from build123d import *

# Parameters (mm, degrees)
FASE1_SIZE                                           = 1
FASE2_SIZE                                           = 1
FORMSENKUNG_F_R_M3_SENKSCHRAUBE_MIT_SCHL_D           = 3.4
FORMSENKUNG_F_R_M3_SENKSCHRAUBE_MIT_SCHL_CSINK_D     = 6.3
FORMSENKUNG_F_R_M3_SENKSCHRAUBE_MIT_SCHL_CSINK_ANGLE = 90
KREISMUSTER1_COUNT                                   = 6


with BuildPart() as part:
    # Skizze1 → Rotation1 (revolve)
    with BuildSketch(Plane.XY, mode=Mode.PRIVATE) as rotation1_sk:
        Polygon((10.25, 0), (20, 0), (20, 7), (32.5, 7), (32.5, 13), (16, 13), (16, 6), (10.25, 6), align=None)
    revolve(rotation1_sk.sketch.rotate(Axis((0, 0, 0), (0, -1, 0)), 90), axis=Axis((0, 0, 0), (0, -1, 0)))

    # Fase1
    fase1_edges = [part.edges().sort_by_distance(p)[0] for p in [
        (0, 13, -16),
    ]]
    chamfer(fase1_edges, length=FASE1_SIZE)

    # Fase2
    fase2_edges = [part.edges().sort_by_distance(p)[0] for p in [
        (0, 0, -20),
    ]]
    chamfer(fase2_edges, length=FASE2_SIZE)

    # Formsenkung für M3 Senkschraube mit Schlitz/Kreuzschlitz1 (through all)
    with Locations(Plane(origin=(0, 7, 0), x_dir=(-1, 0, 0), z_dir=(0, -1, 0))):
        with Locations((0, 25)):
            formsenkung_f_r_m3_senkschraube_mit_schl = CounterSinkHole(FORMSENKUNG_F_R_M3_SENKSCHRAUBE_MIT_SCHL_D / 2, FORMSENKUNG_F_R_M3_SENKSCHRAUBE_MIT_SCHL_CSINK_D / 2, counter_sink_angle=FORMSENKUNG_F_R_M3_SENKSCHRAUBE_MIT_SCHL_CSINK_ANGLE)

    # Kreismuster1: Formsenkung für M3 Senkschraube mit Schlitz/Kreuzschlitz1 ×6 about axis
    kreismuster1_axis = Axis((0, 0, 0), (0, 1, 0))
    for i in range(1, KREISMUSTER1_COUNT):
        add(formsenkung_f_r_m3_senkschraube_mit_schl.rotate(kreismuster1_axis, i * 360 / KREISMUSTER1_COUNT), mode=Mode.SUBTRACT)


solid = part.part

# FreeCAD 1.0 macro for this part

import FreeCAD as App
import Part
import Sketcher
Q = App.Units.Quantity


def edges_at(feature, points):
    """Names of the edges that pass closest to the given points."""
    edges = feature.Shape.Edges
    near = lambda p: min(range(len(edges)), key=lambda i: edges[i].distToShape(Part.Vertex(*p))[0])
    return sorted({f"Edge{near(p) + 1}" for p in points})


def add_polygon(sketch, points):
    """Adds a closed chain of lines whose ends are joined by coincident constraints."""
    first, n = sketch.GeometryCount, len(points)
    for a, b in zip(points, points[1:] + points[:1]):
        sketch.addGeometry(Part.LineSegment(App.Vector(*a, 0), App.Vector(*b, 0)), False)
    for i in range(n):
        sketch.addConstraint(Sketcher.Constraint("Coincident", first + i, 2, first + (i + 1) % n, 1))

doc = App.newDocument("Part")
body = doc.addObject("PartDesign::Body", "Body")

sketch1 = body.newObject("Sketcher::SketchObject", "Sketch")
sketch1.AttachmentSupport = (doc.getObject("XY_Plane"), [""])
sketch1.MapMode = "FlatFace"
add_polygon(sketch1, [(10, 0), (20, 0), (20, 7), (32, 7), (32, 13), (16, 13), (16, 6), (10, 6)])
sketch1.addConstraint(Sketcher.Constraint("Horizontal", 0))
sketch1.addConstraint(Sketcher.Constraint("Vertical", 1))
sketch1.addConstraint(Sketcher.Constraint("Horizontal", 2))
sketch1.addConstraint(Sketcher.Constraint("Vertical", 3))
sketch1.addConstraint(Sketcher.Constraint("Horizontal", 4))
sketch1.addConstraint(Sketcher.Constraint("Vertical", 5))
sketch1.addConstraint(Sketcher.Constraint("Horizontal", 6))
sketch1.addConstraint(Sketcher.Constraint("Vertical", 7))
sketch1.addConstraint(Sketcher.Constraint("PointOnObject", 0, 2, -1))
sketch1.addConstraint(Sketcher.Constraint("Equal", 1, 5))
sketch1.addConstraint(Sketcher.Constraint("DistanceY", 1, 1, 1, 2, Q("7 mm")))
sketch1.addConstraint(Sketcher.Constraint("DistanceY", 3, 1, 3, 2, Q("6 mm")))
sketch1.addConstraint(Sketcher.Constraint("DistanceX", 2, 1, 2, 2, Q("12.5 mm")))
sketch1.addConstraint(Sketcher.Constraint("DistanceX", 4, 2, 4, 1, Q("16.5 mm")))
sketch1.addConstraint(Sketcher.Constraint("DistanceX", -1, 1, 0, 2, Q("20 mm")))
sketch1.addConstraint(Sketcher.Constraint("DistanceX", 0, 1, 0, 2, Q("9.75 mm")))
revolution = body.newObject("PartDesign::Revolution", "Revolution")
revolution.Profile = sketch1
revolution.ReferenceAxis = (sketch1, ["V_Axis"])
revolution.Angle = 360
doc.recompute()

chamfer = body.newObject("PartDesign::Chamfer", "Chamfer")
chamfer.Base = (revolution, edges_at(revolution, [(0, 13, -16)]))
chamfer.Size = 1
doc.recompute()

chamfer2 = body.newObject("PartDesign::Chamfer", "Chamfer001")
chamfer2.Base = (chamfer, edges_at(chamfer, [(0, 0, -20)]))
chamfer2.Size = 1

sketch2 = body.newObject("Sketcher::SketchObject", "Sketch001")
sketch2.AttachmentSupport = (doc.getObject("XZ_Plane"), [""])
sketch2.MapMode = "FlatFace"
sketch2.AttachmentOffset = App.Placement(App.Vector(0, 0, -7), App.Rotation())
sketch2.addGeometry(Part.Circle(App.Vector(0, -25, 0), App.Vector(0, 0, 1), 1.7), False)
sketch2.addConstraint(Sketcher.Constraint("PointOnObject", 0, 3, -2))
sketch2.addConstraint(Sketcher.Constraint("Diameter", 0, Q("3.4 mm")))
sketch2.addConstraint(Sketcher.Constraint("DistanceY", 0, 3, -1, 1, Q("25 mm")))
doc.recompute()
hole = body.newObject("PartDesign::Hole", "Hole")
hole.Profile = sketch2
hole.ThreadType = "None"
hole.Diameter = 3.4
hole.DepthType = "ThroughAll"
hole.HoleCutType = "Countersink"
hole.HoleCutDiameter = 6.3
hole.HoleCutCountersinkAngle = 90
doc.recompute()

polarpattern = body.newObject("PartDesign::PolarPattern", "PolarPattern")
polarpattern.Originals = [hole]
polarpattern.Axis = (doc.getObject("Y_Axis"), [""])
polarpattern.Angle = 360
polarpattern.Occurrences = 6
body.Tip = polarpattern

doc.recompute()
